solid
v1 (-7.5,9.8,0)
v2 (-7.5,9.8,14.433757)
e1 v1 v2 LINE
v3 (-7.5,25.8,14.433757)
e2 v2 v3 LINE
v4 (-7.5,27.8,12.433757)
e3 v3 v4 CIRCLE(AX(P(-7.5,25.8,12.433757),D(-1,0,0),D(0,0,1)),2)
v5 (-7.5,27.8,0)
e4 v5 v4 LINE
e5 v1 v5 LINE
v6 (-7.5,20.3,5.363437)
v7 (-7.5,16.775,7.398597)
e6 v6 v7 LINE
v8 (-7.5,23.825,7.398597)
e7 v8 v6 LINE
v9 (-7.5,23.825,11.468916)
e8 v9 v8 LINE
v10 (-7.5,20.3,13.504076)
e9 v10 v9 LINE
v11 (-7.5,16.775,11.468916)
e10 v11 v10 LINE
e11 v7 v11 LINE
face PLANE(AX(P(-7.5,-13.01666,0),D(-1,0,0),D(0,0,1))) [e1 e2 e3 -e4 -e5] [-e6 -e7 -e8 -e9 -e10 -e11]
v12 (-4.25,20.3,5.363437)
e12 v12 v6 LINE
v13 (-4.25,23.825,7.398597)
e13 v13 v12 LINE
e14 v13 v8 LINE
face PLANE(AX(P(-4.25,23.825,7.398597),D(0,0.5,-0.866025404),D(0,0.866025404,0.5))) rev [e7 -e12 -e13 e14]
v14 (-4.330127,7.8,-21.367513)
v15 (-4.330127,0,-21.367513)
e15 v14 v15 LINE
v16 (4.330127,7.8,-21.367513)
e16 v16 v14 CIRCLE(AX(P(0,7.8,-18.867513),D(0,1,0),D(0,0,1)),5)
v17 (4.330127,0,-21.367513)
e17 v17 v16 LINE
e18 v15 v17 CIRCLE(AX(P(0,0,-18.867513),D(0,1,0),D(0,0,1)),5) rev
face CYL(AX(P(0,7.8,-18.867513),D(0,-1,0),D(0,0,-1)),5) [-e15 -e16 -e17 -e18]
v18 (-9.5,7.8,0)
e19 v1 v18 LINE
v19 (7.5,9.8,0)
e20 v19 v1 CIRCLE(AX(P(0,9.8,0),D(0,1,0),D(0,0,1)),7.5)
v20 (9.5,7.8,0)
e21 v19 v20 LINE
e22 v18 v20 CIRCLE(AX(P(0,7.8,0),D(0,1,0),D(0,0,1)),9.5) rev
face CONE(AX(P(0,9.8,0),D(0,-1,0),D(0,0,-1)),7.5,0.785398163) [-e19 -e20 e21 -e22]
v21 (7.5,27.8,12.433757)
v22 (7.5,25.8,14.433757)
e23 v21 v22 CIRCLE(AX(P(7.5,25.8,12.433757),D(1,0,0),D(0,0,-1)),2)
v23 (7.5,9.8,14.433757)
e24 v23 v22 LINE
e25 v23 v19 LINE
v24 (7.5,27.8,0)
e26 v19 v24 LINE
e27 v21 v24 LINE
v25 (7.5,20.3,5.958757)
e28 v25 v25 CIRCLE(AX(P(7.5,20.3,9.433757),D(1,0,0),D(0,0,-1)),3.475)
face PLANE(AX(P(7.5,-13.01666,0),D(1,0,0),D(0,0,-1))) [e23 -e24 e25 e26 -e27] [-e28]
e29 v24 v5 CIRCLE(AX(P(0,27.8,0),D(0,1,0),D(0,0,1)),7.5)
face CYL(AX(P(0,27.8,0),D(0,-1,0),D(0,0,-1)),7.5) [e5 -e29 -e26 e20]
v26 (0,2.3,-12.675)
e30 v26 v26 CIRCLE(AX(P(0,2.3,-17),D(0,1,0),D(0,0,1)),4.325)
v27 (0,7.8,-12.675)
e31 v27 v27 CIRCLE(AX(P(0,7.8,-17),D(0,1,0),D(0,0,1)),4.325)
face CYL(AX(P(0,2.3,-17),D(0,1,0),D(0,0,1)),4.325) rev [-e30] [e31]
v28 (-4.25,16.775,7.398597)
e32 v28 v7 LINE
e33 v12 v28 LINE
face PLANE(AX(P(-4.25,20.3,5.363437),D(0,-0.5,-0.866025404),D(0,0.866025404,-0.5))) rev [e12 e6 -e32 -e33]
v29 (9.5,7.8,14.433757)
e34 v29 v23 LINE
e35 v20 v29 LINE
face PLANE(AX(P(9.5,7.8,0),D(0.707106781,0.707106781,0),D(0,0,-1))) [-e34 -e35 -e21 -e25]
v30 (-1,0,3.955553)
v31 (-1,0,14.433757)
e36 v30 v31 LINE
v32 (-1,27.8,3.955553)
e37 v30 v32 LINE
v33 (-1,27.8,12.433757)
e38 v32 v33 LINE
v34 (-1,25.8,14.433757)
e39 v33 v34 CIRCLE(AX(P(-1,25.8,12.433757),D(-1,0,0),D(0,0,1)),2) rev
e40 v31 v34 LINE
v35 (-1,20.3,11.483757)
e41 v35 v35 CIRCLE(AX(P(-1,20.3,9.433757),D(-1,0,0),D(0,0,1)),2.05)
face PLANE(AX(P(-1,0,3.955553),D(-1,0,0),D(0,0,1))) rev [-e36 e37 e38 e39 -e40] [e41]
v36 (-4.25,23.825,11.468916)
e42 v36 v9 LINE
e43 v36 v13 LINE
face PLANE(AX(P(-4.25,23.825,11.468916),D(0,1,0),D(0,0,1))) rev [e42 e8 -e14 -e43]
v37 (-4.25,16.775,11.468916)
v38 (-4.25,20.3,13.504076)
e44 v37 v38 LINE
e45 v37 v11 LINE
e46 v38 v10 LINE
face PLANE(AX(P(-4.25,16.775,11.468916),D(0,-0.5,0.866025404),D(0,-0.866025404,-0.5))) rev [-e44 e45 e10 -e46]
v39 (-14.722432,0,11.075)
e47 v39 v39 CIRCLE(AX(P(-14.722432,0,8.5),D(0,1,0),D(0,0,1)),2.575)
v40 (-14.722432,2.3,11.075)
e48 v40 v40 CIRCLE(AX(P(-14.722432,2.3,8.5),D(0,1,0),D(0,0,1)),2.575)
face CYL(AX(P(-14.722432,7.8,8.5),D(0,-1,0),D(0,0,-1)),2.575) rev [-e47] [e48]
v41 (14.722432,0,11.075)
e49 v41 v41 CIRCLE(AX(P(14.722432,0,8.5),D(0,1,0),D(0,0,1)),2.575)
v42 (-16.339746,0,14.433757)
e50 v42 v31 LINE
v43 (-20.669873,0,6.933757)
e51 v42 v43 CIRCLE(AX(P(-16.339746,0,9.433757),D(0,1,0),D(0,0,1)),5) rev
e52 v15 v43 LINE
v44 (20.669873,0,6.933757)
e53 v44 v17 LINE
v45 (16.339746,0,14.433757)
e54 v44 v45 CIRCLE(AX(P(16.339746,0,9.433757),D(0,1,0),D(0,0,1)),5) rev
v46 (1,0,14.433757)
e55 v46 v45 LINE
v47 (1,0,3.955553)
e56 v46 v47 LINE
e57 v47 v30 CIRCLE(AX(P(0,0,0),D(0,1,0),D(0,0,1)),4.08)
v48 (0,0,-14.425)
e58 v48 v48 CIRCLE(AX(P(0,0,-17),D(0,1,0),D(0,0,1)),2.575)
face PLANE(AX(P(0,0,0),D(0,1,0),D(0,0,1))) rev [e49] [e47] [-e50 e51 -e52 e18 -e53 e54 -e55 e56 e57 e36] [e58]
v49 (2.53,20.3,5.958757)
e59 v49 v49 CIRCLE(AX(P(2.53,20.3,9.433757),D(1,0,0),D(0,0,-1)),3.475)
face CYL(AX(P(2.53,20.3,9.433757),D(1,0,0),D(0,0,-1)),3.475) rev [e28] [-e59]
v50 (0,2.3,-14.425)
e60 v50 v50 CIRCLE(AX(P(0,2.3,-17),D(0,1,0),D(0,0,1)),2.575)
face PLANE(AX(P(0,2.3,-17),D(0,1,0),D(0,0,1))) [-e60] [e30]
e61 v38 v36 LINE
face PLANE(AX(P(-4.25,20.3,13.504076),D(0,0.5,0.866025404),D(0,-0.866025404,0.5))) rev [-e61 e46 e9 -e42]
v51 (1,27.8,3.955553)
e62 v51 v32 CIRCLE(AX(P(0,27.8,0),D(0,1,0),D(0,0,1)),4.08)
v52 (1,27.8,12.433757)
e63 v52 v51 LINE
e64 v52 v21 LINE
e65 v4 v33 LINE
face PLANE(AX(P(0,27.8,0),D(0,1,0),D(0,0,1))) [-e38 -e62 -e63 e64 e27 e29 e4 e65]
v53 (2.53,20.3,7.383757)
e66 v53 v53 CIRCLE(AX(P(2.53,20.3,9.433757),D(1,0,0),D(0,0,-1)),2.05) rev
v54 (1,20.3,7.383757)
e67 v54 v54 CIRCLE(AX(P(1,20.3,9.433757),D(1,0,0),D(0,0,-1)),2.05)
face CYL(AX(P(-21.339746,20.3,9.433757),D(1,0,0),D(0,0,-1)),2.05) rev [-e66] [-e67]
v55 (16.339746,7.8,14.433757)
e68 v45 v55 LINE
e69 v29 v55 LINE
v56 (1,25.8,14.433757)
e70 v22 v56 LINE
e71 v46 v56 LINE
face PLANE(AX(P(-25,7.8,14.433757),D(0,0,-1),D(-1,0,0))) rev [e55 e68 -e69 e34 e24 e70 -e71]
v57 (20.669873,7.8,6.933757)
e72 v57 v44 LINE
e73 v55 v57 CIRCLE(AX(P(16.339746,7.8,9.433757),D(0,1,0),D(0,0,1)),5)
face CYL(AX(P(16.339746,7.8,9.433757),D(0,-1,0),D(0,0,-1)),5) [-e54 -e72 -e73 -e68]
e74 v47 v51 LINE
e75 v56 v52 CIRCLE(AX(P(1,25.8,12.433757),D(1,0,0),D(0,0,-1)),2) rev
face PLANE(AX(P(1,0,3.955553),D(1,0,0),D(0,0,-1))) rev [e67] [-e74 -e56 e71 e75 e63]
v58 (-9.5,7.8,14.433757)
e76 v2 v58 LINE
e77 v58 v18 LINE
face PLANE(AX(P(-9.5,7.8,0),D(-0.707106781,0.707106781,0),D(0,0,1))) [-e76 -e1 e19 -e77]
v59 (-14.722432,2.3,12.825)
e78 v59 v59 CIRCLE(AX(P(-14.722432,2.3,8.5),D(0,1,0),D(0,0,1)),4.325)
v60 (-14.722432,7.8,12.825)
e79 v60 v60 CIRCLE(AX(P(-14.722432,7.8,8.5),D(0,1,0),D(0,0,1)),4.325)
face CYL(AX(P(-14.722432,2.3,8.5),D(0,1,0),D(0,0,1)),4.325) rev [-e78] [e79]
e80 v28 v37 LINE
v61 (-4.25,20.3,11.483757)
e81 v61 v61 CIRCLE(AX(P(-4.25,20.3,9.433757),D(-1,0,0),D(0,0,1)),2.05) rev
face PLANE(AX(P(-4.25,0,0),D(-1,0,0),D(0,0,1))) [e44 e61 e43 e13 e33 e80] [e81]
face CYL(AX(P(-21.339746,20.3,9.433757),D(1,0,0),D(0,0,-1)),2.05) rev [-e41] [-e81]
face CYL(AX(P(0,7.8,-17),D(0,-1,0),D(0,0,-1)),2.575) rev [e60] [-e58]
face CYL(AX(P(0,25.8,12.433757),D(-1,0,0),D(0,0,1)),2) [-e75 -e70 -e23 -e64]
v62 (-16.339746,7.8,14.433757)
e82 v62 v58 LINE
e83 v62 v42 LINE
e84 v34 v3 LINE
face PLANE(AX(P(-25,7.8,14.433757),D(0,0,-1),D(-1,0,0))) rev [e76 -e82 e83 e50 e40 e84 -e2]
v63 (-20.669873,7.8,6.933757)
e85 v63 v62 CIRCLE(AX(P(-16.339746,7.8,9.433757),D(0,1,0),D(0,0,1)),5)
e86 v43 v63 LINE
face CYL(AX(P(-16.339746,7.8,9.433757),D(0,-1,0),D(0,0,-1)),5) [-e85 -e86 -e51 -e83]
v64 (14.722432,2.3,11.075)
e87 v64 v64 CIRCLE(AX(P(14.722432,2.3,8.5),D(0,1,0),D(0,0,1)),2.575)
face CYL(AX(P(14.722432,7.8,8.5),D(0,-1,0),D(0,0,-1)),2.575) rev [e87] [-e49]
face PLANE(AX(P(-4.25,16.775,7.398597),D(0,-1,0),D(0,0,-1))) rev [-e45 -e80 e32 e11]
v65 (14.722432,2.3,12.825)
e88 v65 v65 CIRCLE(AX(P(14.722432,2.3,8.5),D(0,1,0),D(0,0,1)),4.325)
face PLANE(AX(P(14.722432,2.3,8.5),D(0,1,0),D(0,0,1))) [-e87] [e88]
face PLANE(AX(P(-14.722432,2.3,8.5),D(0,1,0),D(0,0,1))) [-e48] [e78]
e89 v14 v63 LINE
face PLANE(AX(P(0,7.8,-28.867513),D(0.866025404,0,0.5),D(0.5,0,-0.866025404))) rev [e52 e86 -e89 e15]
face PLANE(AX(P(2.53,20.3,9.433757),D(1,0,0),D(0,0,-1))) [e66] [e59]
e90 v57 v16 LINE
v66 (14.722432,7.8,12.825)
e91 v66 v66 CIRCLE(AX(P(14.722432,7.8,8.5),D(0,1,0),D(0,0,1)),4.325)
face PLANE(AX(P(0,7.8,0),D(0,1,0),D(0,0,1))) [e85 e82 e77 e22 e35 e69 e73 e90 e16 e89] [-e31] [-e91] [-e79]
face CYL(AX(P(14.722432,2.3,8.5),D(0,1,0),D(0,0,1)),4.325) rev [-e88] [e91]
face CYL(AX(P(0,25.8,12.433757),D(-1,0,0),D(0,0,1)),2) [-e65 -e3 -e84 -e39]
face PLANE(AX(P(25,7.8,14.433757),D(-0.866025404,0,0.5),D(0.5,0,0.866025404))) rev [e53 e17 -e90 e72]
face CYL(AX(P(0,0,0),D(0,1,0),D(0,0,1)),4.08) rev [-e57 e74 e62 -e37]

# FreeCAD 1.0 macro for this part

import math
import FreeCAD as App
import Part
import Sketcher
from FreeCAD import Vector
Q = App.Units.Quantity


def edges_at(feature, points):
    """Names of the edges that pass closest to the given points."""
    edges = feature.Shape.Edges
    near = lambda p: min(range(len(edges)), key=lambda i: edges[i].distToShape(Part.Vertex(*p))[0])
    return sorted({f"Edge{near(p) + 1}" for p in points})


def add_polygon(sketch, points):
    """Adds a closed chain of lines whose ends are joined by coincident constraints."""
    first, n = sketch.GeometryCount, len(points)
    for a, b in zip(points, points[1:] + points[:1]):
        sketch.addGeometry(Part.LineSegment(App.Vector(*a, 0), App.Vector(*b, 0)), False)
    for i in range(n):
        sketch.addConstraint(Sketcher.Constraint("Coincident", first + i, 2, first + (i + 1) % n, 1))

doc = App.newDocument("Part")
body = doc.addObject("PartDesign::Body", "Body")

# Sketch on XZ plane
sketch1 = body.newObject("Sketcher::SketchObject", "Sketch")
sketch1.AttachmentSupport = (doc.getObject("XZ_Plane"), [""])
sketch1.MapMode = "FlatFace"
add_polygon(sketch1, [(-25, 14.4), (25, 14.4), (0, -28.9)])  # lines 0-2
sketch1.addGeometry(Part.Circle(Vector(-14.7, 8.5, 0), Vector(0, 0, 1), 2.6), False)  # 3
sketch1.addGeometry(Part.Circle(Vector(14.7, 8.5, 0), Vector(0, 0, 1), 2.6), False)  # 4
sketch1.addGeometry(Part.Circle(Vector(0, -17, 0), Vector(0, 0, 1), 2.6), False)  # 5
sketch1.addConstraint([
    Sketcher.Constraint("Horizontal", 0),
    Sketcher.Constraint("Equal", 3, 4),
    Sketcher.Constraint("Equal", 4, 5),
    Sketcher.Constraint("Symmetric", 3, 3, 4, 3, -2),
    Sketcher.Constraint("PointOnObject", 5, 3, -2),
    Sketcher.Constraint("PointOnObject", 1, 2, -2),
    Sketcher.Constraint("Equal", 1, 2),
    Sketcher.Constraint("Diameter", 3, Q("5.15 mm")),
    Sketcher.Constraint("DistanceX", 0, 1, 0, 2, Q("50 mm")),
    Sketcher.Constraint("Angle", 1, Q("-120 deg")),
    Sketcher.Constraint("DistanceY", 5, 3, -1, 1, Q("17 mm")),
    Sketcher.Constraint("DistanceY", -1, 1, 3, 3, Q("8.5 mm")),
    Sketcher.Constraint("DistanceX", 3, 3, -1, 1, Q("14.722432 mm")),
    Sketcher.Constraint("DistanceY", -1, 1, 0, 2, Q("14.433757 mm")),
])
pad1 = body.newObject("PartDesign::Pad", "Pad")
pad1.Profile = sketch1
pad1.Length = 7.8
pad1.Reversed = True

# Sketch on XZ plane
sketch2 = body.newObject("Sketcher::SketchObject", "Sketch001")
sketch2.AttachmentSupport = (doc.getObject("XZ_Plane"), [""])
sketch2.MapMode = "FlatFace"
sketch2.AttachmentOffset = App.Placement(Vector(0, 0, -7.8), App.Rotation())
sketch2.addGeometry(Part.Circle(Vector(0, 0, 0), Vector(0, 0, 1), 8), False)
sketch2.addConstraint([
    Sketcher.Constraint("Coincident", 0, 3, -1, 1),
    Sketcher.Constraint("Diameter", 0, Q("15 mm")),
])
pad2 = body.newObject("PartDesign::Pad", "Pad001")
pad2.Profile = sketch2
pad2.Length = 20
pad2.Reversed = True

# Sketch on XZ plane
sketch3 = body.newObject("Sketcher::SketchObject", "Sketch002")
sketch3.AttachmentSupport = (doc.getObject("XZ_Plane"), [""])
sketch3.MapMode = "FlatFace"
sketch3.AttachmentOffset = App.Placement(Vector(0, 0, -7.8), App.Rotation())
sketch3.addGeometry([
    Part.LineSegment(Vector(-8, 0, 0), Vector(-8, 14, 0)),
    Part.LineSegment(Vector(-8, 14, 0), Vector(8, 14, 0)),
    Part.LineSegment(Vector(8, 14, 0), Vector(8, 0, 0)),
    Part.ArcOfCircle(Part.Circle(Vector(0, 0, 0), Vector(0, 0, 1), 8), math.radians(0), math.radians(180)),
], False)
sketch3.addConstraint([
    Sketcher.Constraint("Coincident", 0, 2, 1, 1),
    Sketcher.Constraint("Coincident", 1, 2, 2, 1),
    Sketcher.Constraint("Tangent", 2, 2, 3, 1),
    Sketcher.Constraint("Tangent", 3, 2, 0, 1),
    Sketcher.Constraint("Vertical", 0),
    Sketcher.Constraint("Horizontal", 1),
    Sketcher.Constraint("Vertical", 2),
    Sketcher.Constraint("Coincident", 3, 3, -1, 1),
    Sketcher.Constraint("Radius", 3, Q("7.5 mm")),
    Sketcher.Constraint("DistanceY", 0, 1, 0, 2, Q("14.433757 mm")),
])
pad3 = body.newObject("PartDesign::Pad", "Pad002")
pad3.Profile = sketch3
pad3.Length = 20
pad3.Reversed = True

# Sketch on XZ plane
sketch4 = body.newObject("Sketcher::SketchObject", "Sketch003")
sketch4.AttachmentSupport = (doc.getObject("XZ_Plane"), [""])
sketch4.MapMode = "FlatFace"
sketch4.AttachmentOffset = App.Placement(Vector(0, 0, -27.8), App.Rotation())
sketch4.addGeometry(Part.Circle(Vector(0, 0, 0), Vector(0, 0, 1), 4.1), False)
sketch4.addConstraint([
    Sketcher.Constraint("Coincident", 0, 3, -1, 1),
    Sketcher.Constraint("Diameter", 0, Q("8.16 mm")),
])
pocket1 = body.newObject("PartDesign::Pocket", "Pocket")
pocket1.Profile = sketch4
pocket1.Type = "ThroughAll"
pocket1.Reversed = True

# Sketch on XZ plane
sketch5 = body.newObject("Sketcher::SketchObject", "Sketch004")
sketch5.AttachmentSupport = (doc.getObject("XZ_Plane"), [""])
sketch5.MapMode = "FlatFace"
sketch5.AttachmentOffset = App.Placement(Vector(0, 0, -27.8), App.Rotation())
sketch5.addGeometry([
    Part.LineSegment(Vector(-1, 4, 0), Vector(-1, 14.4, 0)),
    Part.LineSegment(Vector(-1, 14.4, 0), Vector(1, 14.4, 0)),
    Part.LineSegment(Vector(1, 14.4, 0), Vector(1, 4, 0)),
    Part.ArcOfCircle(Part.Circle(Vector(0, 0, 0), Vector(0, 0, 1), 4.1), math.radians(76), math.radians(104)),
], False)
sketch5.addConstraint([
    Sketcher.Constraint("Coincident", 0, 2, 1, 1),
    Sketcher.Constraint("Coincident", 1, 2, 2, 1),
    Sketcher.Constraint("Coincident", 2, 2, 3, 1),
    Sketcher.Constraint("Coincident", 3, 2, 0, 1),
    Sketcher.Constraint("Vertical", 0),
    Sketcher.Constraint("Horizontal", 1),
    Sketcher.Constraint("Vertical", 2),
    Sketcher.Constraint("Coincident", 3, 3, -1, 1),
    Sketcher.Constraint("Horizontal", 2, 2, 3, 2),
    Sketcher.Constraint("DistanceX", 1, 1, 1, 2, Q("2 mm")),
    Sketcher.Constraint("Radius", 3, Q("4.08 mm")),
    Sketcher.Constraint("DistanceY", 0, 1, 0, 2, Q("10.478204 mm")),
])
pocket2 = body.newObject("PartDesign::Pocket", "Pocket001")
pocket2.Profile = sketch5
pocket2.Type = "ThroughAll"
pocket2.Reversed = True
doc.recompute()

fillet = body.newObject("PartDesign::Fillet", "Fillet")
fillet.Base = (pocket2, edges_at(pocket2, [(0, 3.9, -28.868), (25, 3.9, 14.434), (-25, 3.9, 14.434)]))
fillet.Radius = 5

# Sketch on YZ plane
sketch6 = body.newObject("Sketcher::SketchObject", "Sketch005")
sketch6.AttachmentSupport = (doc.getObject("YZ_Plane"), [""])
sketch6.MapMode = "FlatFace"
sketch6.AttachmentOffset = App.Placement(Vector(0, 0, 7.5), App.Rotation())
sketch6.addGeometry(Part.Circle(Vector(20.3, 9.4, 0), Vector(0, 0, 1), 2), False)
sketch6.addConstraint([
    Sketcher.Constraint("Diameter", 0, Q("4.1 mm")),
    Sketcher.Constraint("DistanceX", -1, 1, 0, 3, Q("20.3 mm")),
    Sketcher.Constraint("DistanceY", -1, 1, 0, 3, Q("9.433757 mm")),
])
pocket3 = body.newObject("PartDesign::Pocket", "Pocket002")
pocket3.Profile = sketch6
pocket3.Type = "ThroughAll"

# Sketch on YZ plane
sketch7 = body.newObject("Sketcher::SketchObject", "Sketch006")
sketch7.AttachmentSupport = (doc.getObject("YZ_Plane"), [""])
sketch7.MapMode = "FlatFace"
sketch7.AttachmentOffset = App.Placement(Vector(0, 0, -7.5), App.Rotation())
add_polygon(sketch7, [(23.8, 11.5), (23.8, 7.4), (20.3, 5.4), (16.8, 7.4), (16.8, 11.5), (20.3, 13.5)])  # lines 0-5
sketch7.addConstraint([
    Sketcher.Constraint("Vertical", 0),
    Sketcher.Constraint("Vertical", 3),
    Sketcher.Constraint("Parallel", 1, 4),
    Sketcher.Constraint("Parallel", 2, 5),
    Sketcher.Constraint("Horizontal", 0, 2, 2, 2),
    Sketcher.Constraint("Horizontal", 3, 2, 5, 2),
    Sketcher.Constraint("Vertical", 1, 2, 4, 2),
    Sketcher.Constraint("Angle", 1, Q("-150 deg")),
    Sketcher.Constraint("DistanceX", -1, 1, 1, 2, Q("20.3 mm")),
    Sketcher.Constraint("DistanceX", 2, 2, 0, 2, Q("7.05 mm")),
    Sketcher.Constraint("DistanceY", 0, 2, 0, 1, Q("4.070319 mm")),
    Sketcher.Constraint("DistanceY", -1, 1, 0, 2, Q("7.398597 mm")),
])
pocket4 = body.newObject("PartDesign::Pocket", "Pocket003")
pocket4.Profile = sketch7
pocket4.Length = 3.25
pocket4.Reversed = True

# Sketch on XZ plane
sketch8 = body.newObject("Sketcher::SketchObject", "Sketch007")
sketch8.AttachmentSupport = (doc.getObject("XZ_Plane"), [""])
sketch8.MapMode = "FlatFace"
sketch8.AttachmentOffset = App.Placement(Vector(0, 0, -7.8), App.Rotation())
sketch8.addGeometry([
    Part.Circle(Vector(0, -17, 0), Vector(0, 0, 1), 4.3),
    Part.Circle(Vector(14.7, 8.5, 0), Vector(0, 0, 1), 4.3),
    Part.Circle(Vector(-14.7, 8.5, 0), Vector(0, 0, 1), 4.3),
], False)
sketch8.addConstraint([
    Sketcher.Constraint("Equal", 0, 1),
    Sketcher.Constraint("Equal", 1, 2),
    Sketcher.Constraint("Symmetric", 1, 3, 2, 3, -2),
    Sketcher.Constraint("PointOnObject", 0, 3, -2),
    Sketcher.Constraint("Diameter", 0, Q("8.65 mm")),
    Sketcher.Constraint("DistanceY", 0, 3, -1, 1, Q("17 mm")),
    Sketcher.Constraint("DistanceY", -1, 1, 1, 3, Q("8.5 mm")),
    Sketcher.Constraint("DistanceX", -1, 1, 1, 3, Q("14.722432 mm")),
])
pocket5 = body.newObject("PartDesign::Pocket", "Pocket004")
pocket5.Profile = sketch8
pocket5.Length = 5.5
pocket5.Reversed = True

# Sketch on YZ plane
sketch9 = body.newObject("Sketcher::SketchObject", "Sketch008")
sketch9.AttachmentSupport = (doc.getObject("YZ_Plane"), [""])
sketch9.MapMode = "FlatFace"
sketch9.AttachmentOffset = App.Placement(Vector(0, 0, 7.5), App.Rotation())
sketch9.addGeometry(Part.Circle(Vector(20.3, 9.4, 0), Vector(0, 0, 1), 3.5), False)
sketch9.addConstraint([
    Sketcher.Constraint("Diameter", 0, Q("6.95 mm")),
    Sketcher.Constraint("DistanceX", -1, 1, 0, 3, Q("20.3 mm")),
    Sketcher.Constraint("DistanceY", -1, 1, 0, 3, Q("9.433757 mm")),
])
pocket6 = body.newObject("PartDesign::Pocket", "Pocket005")
pocket6.Profile = sketch9
pocket6.Length = 4.97
doc.recompute()

fillet2 = body.newObject("PartDesign::Fillet", "Fillet001")
fillet2.Base = (pocket6, edges_at(pocket6, [(-4.25, 27.8, 14.434), (4.25, 27.8, 14.434)]))
fillet2.Radius = 2
doc.recompute()

chamfer = body.newObject("PartDesign::Chamfer", "Chamfer")
chamfer.Base = (fillet2, edges_at(fillet2, [(0, 7.8, -7.5), (7.5, 7.8, 7.217), (-7.5, 7.8, 7.217)]))
chamfer.Size = 2

doc.recompute()
